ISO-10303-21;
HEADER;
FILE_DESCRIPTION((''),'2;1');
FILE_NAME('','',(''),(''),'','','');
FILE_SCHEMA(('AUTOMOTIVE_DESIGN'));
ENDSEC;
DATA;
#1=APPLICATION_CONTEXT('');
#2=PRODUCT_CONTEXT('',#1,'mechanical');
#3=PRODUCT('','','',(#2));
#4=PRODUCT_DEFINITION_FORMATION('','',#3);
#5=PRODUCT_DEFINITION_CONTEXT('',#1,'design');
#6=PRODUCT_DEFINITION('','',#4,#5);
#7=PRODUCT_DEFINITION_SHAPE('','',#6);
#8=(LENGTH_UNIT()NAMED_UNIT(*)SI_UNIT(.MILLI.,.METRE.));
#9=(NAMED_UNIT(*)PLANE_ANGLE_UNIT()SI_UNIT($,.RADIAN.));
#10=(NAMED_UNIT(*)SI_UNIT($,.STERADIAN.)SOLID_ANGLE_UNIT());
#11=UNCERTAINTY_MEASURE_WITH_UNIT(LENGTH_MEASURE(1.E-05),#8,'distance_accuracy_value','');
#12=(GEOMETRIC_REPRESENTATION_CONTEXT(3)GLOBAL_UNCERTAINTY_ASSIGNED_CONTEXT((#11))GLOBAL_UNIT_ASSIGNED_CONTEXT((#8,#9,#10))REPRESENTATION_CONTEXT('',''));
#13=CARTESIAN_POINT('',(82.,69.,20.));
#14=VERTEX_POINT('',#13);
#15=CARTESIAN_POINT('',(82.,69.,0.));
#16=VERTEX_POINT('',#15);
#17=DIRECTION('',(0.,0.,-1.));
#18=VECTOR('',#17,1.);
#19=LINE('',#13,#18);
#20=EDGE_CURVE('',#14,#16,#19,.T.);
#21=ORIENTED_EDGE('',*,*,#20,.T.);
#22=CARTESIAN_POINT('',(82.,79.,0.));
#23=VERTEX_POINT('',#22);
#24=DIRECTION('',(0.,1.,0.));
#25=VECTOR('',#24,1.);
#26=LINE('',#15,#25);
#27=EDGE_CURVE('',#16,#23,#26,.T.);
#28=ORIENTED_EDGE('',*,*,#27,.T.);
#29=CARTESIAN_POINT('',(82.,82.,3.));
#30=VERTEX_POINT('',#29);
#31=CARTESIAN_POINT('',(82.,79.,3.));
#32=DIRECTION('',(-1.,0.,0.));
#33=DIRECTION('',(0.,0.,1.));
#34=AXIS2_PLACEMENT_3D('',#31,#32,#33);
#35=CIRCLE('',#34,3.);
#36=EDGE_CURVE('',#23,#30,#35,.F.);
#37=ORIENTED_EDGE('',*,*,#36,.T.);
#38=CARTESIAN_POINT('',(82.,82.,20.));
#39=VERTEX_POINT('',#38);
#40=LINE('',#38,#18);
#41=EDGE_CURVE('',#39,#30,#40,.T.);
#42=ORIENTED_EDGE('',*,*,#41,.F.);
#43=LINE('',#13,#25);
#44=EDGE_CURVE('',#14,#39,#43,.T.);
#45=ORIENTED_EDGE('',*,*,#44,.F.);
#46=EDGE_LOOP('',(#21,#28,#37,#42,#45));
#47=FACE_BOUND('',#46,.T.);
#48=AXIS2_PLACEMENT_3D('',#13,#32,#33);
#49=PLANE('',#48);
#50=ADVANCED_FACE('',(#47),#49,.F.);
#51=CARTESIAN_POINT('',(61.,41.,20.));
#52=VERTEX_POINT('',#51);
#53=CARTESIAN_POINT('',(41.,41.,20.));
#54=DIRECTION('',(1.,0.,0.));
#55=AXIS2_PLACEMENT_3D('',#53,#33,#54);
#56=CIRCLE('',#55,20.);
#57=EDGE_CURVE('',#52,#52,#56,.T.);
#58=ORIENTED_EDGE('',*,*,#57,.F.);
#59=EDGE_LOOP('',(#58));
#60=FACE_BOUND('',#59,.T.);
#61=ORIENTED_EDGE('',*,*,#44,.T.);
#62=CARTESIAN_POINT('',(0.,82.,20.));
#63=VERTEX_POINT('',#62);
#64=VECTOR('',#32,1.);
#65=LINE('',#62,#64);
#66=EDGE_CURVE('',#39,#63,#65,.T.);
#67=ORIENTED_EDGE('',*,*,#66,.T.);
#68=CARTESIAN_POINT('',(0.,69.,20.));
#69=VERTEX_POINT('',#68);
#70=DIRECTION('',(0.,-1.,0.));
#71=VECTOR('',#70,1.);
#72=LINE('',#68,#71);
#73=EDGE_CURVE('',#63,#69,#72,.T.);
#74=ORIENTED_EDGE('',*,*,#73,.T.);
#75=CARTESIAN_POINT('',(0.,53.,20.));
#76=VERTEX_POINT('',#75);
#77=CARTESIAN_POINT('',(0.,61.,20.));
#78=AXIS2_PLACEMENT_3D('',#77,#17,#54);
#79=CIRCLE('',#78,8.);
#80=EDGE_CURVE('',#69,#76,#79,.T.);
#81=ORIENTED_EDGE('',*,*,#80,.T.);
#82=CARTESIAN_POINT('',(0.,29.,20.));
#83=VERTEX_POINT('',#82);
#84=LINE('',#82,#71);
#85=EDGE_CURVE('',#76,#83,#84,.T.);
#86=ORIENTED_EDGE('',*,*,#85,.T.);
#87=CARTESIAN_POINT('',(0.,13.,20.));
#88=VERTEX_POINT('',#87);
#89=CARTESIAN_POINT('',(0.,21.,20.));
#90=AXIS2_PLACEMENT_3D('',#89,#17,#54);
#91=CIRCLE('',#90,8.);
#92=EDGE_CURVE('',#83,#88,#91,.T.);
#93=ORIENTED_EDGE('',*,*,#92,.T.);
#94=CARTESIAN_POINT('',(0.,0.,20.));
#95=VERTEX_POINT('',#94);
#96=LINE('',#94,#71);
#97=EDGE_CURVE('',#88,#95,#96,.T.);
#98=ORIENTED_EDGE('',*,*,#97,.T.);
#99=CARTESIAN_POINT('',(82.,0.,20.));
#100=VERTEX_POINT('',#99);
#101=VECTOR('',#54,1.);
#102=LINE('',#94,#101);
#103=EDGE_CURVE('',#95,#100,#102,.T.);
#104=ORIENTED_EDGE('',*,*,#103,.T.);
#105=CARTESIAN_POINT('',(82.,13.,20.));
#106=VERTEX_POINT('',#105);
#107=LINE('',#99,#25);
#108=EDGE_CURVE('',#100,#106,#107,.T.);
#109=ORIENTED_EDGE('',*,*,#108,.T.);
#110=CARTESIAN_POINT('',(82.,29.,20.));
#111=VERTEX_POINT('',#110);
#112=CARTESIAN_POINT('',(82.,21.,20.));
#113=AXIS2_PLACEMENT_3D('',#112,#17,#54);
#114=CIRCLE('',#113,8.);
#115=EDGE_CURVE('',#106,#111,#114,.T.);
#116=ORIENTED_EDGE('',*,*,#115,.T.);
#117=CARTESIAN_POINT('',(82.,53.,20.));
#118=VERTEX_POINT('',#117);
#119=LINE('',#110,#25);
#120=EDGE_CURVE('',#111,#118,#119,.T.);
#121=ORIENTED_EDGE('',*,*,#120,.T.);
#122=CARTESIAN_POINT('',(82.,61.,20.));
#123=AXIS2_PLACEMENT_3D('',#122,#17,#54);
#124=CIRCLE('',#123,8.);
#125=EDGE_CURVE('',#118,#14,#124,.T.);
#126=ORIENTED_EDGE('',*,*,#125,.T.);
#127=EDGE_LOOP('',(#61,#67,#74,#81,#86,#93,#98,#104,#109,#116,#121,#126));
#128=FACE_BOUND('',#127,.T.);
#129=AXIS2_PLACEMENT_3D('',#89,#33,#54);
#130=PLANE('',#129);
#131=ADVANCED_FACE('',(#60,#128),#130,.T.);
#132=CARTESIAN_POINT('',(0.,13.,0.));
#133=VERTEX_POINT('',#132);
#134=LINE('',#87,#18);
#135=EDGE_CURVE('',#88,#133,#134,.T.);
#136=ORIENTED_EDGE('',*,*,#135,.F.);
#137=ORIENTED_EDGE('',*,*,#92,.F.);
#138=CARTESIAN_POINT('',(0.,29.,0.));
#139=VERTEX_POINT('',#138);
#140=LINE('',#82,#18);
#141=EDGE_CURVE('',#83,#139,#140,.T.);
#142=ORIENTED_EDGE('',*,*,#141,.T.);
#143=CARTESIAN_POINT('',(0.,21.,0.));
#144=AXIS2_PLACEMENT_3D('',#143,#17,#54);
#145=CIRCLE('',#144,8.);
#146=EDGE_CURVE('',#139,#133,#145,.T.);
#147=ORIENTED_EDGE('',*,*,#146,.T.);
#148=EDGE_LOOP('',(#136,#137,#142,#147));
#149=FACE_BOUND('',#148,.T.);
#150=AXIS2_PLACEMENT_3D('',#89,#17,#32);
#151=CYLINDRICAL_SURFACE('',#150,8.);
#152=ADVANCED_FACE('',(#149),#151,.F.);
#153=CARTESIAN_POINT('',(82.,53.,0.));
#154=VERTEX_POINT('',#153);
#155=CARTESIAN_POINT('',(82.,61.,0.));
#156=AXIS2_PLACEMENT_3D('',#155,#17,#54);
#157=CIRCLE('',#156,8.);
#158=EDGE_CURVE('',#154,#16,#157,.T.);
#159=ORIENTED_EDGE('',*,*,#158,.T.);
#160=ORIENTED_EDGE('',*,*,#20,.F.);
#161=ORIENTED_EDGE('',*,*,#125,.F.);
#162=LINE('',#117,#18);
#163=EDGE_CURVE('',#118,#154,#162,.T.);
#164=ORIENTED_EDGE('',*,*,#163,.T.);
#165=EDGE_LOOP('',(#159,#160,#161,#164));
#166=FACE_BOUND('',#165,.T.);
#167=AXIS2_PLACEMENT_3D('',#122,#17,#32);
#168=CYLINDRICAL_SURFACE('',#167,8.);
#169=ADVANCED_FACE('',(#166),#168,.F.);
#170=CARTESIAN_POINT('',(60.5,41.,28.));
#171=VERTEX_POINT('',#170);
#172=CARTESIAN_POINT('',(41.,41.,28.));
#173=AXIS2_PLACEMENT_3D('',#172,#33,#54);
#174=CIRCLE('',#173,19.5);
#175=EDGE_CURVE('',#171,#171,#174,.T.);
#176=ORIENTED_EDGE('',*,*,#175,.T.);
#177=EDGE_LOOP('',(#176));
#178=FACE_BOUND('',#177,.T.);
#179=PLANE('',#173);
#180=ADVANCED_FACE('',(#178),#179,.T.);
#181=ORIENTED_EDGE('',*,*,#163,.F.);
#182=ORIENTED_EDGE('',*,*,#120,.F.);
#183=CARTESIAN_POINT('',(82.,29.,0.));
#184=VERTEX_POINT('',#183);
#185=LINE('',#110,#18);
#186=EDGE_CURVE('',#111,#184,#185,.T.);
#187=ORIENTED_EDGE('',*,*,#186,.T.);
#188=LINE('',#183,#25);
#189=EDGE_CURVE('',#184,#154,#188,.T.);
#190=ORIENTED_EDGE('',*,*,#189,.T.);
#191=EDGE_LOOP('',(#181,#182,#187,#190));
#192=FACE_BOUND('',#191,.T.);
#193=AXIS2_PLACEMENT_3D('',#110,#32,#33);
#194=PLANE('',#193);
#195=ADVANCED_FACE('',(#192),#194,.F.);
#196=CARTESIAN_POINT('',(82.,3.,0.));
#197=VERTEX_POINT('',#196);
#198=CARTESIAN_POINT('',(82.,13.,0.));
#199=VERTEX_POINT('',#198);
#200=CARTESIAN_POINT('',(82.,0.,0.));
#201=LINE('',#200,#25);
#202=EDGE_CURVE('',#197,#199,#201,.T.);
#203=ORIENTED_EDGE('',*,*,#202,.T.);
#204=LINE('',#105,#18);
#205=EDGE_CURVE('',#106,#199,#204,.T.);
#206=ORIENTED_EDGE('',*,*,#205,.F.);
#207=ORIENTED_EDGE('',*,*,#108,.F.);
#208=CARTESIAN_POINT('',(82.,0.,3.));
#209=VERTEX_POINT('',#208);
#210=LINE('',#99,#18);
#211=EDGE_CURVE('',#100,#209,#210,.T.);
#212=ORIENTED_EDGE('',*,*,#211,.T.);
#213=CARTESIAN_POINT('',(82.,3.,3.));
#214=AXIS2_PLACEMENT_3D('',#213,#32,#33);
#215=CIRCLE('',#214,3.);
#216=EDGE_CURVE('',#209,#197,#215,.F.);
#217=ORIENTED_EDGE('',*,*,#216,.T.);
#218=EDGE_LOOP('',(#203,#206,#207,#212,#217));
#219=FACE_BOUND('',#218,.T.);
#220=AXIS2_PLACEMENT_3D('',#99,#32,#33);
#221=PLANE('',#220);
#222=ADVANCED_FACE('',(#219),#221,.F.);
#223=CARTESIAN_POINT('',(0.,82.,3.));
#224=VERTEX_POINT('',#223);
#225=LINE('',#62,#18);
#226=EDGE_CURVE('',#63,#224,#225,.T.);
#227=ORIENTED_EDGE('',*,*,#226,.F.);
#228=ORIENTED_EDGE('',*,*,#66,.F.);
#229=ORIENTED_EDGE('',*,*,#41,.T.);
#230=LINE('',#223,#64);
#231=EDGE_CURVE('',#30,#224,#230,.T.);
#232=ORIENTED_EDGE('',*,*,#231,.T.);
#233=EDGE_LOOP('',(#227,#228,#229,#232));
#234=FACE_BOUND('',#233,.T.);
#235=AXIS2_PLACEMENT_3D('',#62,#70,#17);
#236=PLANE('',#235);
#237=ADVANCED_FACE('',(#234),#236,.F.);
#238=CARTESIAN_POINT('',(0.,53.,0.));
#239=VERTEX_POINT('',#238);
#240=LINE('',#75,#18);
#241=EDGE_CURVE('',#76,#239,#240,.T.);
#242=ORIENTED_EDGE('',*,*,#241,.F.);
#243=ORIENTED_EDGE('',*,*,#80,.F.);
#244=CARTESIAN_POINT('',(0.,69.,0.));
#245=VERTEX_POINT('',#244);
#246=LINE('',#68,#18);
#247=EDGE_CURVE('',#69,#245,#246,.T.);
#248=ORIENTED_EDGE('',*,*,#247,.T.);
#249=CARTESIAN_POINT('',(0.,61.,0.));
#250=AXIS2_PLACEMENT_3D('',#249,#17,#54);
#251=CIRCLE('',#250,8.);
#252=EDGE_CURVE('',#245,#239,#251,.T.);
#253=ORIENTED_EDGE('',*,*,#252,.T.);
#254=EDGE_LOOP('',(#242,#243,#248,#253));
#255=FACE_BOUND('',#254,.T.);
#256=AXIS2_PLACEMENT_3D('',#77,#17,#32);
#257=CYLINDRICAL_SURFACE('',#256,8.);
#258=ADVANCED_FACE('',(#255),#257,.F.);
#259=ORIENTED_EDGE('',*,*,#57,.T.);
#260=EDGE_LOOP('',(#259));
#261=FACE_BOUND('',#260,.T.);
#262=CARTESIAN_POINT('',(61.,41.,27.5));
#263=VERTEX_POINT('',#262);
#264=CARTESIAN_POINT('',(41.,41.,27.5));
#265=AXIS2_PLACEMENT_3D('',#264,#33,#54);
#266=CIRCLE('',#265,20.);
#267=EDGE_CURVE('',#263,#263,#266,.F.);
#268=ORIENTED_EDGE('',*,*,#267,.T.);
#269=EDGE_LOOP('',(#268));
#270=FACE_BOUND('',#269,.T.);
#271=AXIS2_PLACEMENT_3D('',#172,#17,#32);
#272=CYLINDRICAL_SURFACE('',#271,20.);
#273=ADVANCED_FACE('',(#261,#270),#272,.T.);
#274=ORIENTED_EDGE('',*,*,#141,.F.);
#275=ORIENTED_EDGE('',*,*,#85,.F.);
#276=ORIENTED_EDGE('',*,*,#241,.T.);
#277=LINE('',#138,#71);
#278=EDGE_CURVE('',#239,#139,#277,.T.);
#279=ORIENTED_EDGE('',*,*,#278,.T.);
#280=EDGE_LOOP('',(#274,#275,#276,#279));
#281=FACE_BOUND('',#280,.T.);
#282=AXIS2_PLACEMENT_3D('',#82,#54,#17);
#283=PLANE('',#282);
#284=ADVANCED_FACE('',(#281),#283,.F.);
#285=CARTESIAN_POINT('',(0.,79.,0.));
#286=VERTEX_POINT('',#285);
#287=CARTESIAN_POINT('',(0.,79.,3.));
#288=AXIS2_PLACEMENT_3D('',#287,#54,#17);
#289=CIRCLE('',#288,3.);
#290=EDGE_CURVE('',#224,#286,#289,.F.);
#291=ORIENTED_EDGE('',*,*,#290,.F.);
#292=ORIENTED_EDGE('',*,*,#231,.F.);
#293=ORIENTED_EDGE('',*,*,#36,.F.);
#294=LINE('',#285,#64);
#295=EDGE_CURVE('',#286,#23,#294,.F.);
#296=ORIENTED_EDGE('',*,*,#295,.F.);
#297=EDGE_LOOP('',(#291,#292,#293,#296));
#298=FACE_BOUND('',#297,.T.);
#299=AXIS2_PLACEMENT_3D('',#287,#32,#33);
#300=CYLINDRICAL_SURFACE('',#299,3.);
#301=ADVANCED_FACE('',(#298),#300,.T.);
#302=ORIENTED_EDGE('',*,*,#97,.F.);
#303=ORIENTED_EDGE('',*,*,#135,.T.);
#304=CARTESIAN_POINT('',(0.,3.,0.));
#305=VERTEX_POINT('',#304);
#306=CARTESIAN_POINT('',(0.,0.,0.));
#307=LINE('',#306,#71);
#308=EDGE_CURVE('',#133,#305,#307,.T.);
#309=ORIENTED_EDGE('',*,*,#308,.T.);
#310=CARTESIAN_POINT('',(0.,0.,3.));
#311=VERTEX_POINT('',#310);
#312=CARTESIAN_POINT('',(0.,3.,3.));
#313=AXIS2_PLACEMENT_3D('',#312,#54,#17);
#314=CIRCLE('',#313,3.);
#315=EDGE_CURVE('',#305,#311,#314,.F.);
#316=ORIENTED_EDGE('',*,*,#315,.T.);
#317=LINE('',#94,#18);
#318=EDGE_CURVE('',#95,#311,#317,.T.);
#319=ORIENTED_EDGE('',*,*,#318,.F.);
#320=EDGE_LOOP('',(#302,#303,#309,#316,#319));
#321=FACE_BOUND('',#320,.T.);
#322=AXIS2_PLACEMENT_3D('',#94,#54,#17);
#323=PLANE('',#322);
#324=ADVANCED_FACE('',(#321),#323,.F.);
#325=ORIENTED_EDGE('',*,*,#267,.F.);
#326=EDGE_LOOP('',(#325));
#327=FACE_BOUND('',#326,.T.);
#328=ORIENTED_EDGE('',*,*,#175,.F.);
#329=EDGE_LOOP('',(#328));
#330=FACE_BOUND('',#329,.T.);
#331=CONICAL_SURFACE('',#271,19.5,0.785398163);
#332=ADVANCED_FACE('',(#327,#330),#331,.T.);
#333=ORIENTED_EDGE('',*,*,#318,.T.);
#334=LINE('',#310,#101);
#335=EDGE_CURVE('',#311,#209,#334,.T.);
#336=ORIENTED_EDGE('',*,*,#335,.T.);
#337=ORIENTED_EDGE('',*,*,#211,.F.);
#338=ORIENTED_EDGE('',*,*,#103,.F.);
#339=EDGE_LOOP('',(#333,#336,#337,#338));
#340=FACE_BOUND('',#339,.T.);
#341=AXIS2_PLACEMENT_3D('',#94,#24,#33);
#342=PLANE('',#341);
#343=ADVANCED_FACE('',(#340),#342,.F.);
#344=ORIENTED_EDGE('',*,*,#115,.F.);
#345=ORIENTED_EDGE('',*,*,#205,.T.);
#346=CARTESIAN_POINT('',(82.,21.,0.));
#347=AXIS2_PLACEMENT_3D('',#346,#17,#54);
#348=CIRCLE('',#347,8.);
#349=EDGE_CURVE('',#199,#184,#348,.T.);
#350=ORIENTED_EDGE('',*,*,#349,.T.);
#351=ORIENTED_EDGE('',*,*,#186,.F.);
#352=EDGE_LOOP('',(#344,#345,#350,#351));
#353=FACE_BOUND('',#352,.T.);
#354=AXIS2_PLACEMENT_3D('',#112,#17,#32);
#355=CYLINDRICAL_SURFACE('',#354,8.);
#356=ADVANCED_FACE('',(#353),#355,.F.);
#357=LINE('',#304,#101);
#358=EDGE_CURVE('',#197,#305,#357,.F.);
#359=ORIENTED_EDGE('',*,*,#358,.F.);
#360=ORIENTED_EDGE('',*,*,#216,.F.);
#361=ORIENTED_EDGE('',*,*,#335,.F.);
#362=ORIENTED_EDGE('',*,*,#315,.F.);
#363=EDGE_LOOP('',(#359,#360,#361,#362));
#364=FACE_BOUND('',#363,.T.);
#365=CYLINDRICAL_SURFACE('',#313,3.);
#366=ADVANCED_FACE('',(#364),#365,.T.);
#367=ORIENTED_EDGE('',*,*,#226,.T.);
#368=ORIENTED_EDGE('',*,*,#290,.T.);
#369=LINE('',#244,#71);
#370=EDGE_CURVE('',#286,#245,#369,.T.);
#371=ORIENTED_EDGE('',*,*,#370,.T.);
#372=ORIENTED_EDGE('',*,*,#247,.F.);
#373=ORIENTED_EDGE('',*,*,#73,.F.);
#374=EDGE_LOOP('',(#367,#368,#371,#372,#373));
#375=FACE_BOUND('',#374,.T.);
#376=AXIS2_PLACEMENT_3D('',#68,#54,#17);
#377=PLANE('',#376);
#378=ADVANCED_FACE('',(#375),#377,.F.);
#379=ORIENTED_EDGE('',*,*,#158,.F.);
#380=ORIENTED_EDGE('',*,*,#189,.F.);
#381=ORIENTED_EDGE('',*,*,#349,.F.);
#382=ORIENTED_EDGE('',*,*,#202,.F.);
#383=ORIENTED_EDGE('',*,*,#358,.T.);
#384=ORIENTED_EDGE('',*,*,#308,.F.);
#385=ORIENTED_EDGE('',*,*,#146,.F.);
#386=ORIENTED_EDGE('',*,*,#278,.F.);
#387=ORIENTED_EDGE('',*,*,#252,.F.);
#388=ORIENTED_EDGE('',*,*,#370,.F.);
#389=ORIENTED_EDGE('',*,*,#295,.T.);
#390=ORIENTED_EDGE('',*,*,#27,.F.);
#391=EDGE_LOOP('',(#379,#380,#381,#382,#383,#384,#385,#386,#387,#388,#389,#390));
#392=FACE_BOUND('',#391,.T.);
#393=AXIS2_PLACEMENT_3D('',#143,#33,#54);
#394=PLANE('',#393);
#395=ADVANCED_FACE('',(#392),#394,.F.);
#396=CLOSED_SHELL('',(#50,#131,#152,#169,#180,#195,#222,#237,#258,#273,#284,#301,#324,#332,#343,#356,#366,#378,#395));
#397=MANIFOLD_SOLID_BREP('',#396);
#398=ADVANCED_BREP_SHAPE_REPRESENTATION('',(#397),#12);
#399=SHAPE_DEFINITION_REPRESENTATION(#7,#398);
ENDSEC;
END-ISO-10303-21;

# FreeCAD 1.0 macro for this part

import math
import FreeCAD as App
import Part
import Sketcher
from FreeCAD import Vector
Q = App.Units.Quantity


def edges_at(feature, points):
    """Names of the edges that pass closest to the given points."""
    edges = feature.Shape.Edges
    near = lambda p: min(range(len(edges)), key=lambda i: edges[i].distToShape(Part.Vertex(*p))[0])
    return sorted({f"Edge{near(p) + 1}" for p in points})

doc = App.newDocument("Part")
body = doc.addObject("PartDesign::Body", "Body")

# Sketch on XY plane
sketch1 = body.newObject("Sketcher::SketchObject", "Sketch")
sketch1.AttachmentSupport = (doc.getObject("XY_Plane"), [""])
sketch1.MapMode = "FlatFace"
sketch1.addGeometry([
    Part.LineSegment(Vector(0, 82, 0), Vector(0, 69, 0)),  # 0
    Part.ArcOfCircle(Part.Circle(Vector(0, 61, 0), Vector(0, 0, 1), 8), math.radians(-90), math.radians(90)),  # 1
    Part.LineSegment(Vector(0, 53, 0), Vector(0, 29, 0)),  # 2
    Part.ArcOfCircle(Part.Circle(Vector(0, 21, 0), Vector(0, 0, 1), 8), math.radians(-90), math.radians(90)),  # 3
    Part.LineSegment(Vector(0, 13, 0), Vector(0, 0, 0)),  # 4
    Part.LineSegment(Vector(0, 0, 0), Vector(82, 0, 0)),  # 5
    Part.LineSegment(Vector(82, 0, 0), Vector(82, 13, 0)),  # 6
    Part.ArcOfCircle(Part.Circle(Vector(82, 21, 0), Vector(0, 0, 1), 8), math.radians(90), math.radians(270)),  # 7
    Part.LineSegment(Vector(82, 29, 0), Vector(82, 53, 0)),  # 8
    Part.ArcOfCircle(Part.Circle(Vector(82, 61, 0), Vector(0, 0, 1), 8), math.radians(90), math.radians(270)),  # 9
    Part.LineSegment(Vector(82, 69, 0), Vector(82, 82, 0)),  # 10
    Part.LineSegment(Vector(82, 82, 0), Vector(0, 82, 0)),  # 11
], False)
sketch1.addConstraint([
    Sketcher.Constraint("Coincident", 0, 2, 1, 2),
    Sketcher.Constraint("Coincident", 1, 1, 2, 1),
    Sketcher.Constraint("Coincident", 2, 2, 3, 2),
    Sketcher.Constraint("Coincident", 3, 1, 4, 1),
    Sketcher.Constraint("Coincident", 4, 2, 5, 1),
    Sketcher.Constraint("Coincident", 5, 2, 6, 1),
    Sketcher.Constraint("Coincident", 6, 2, 7, 2),
    Sketcher.Constraint("Coincident", 7, 1, 8, 1),
    Sketcher.Constraint("Coincident", 8, 2, 9, 2),
    Sketcher.Constraint("Coincident", 9, 1, 10, 1),
    Sketcher.Constraint("Coincident", 10, 2, 11, 1),
    Sketcher.Constraint("Coincident", 11, 2, 0, 1),
    Sketcher.Constraint("Vertical", 0),
    Sketcher.Constraint("Vertical", 2),
    Sketcher.Constraint("Vertical", 4),
    Sketcher.Constraint("Horizontal", 5),
    Sketcher.Constraint("Vertical", 6),
    Sketcher.Constraint("Vertical", 8),
    Sketcher.Constraint("Vertical", 10),
    Sketcher.Constraint("Horizontal", 11),
    Sketcher.Constraint("Coincident", 4, 2, -1, 1),
    Sketcher.Constraint("Equal", 1, 3),
    Sketcher.Constraint("Equal", 3, 7),
    Sketcher.Constraint("Equal", 7, 9),
    Sketcher.Constraint("PointOnObject", 1, 3, -2),
    Sketcher.Constraint("PointOnObject", 3, 3, -2),
    Sketcher.Constraint("PointOnObject", 0, 2, -2),
    Sketcher.Constraint("PointOnObject", 1, 1, -2),
    Sketcher.Constraint("Horizontal", 3, 3, 7, 3),
    Sketcher.Constraint("Horizontal", 1, 3, 9, 3),
    Sketcher.Constraint("Vertical", 7, 3, 9, 3),
    Sketcher.Constraint("Vertical", 9, 3, 5, 2),
    Sketcher.Constraint("Vertical", 6, 2, 7, 1),
    Sketcher.Constraint("Vertical", 8, 2, 9, 1),
    Sketcher.Constraint("Equal", 0, 4),
    Sketcher.Constraint("Radius", 1, Q("8 mm")),
    Sketcher.Constraint("DistanceX", 5, 1, 5, 2, Q("82 mm")),
    Sketcher.Constraint("DistanceY", 0, 2, 0, 1, Q("13 mm")),
    Sketcher.Constraint("DistanceY", 2, 2, 2, 1, Q("24 mm")),
])
pad1 = body.newObject("PartDesign::Pad", "Pad")
pad1.Profile = sketch1
pad1.Length = 20

# Sketch on XY plane
sketch2 = body.newObject("Sketcher::SketchObject", "Sketch001")
sketch2.AttachmentSupport = (doc.getObject("XY_Plane"), [""])
sketch2.MapMode = "FlatFace"
sketch2.AttachmentOffset = App.Placement(Vector(0, 0, 20), App.Rotation())
sketch2.addGeometry(Part.Circle(Vector(41, 41, 0), Vector(0, 0, 1), 20), False)
sketch2.addConstraint([
    Sketcher.Constraint("Diameter", 0, Q("40 mm")),
    Sketcher.Constraint("DistanceX", -1, 1, 0, 3, Q("41 mm")),
    Sketcher.Constraint("DistanceY", -1, 1, 0, 3, Q("41 mm")),
])
pad2 = body.newObject("PartDesign::Pad", "Pad001")
pad2.Profile = sketch2
pad2.Length = 8
doc.recompute()

chamfer = body.newObject("PartDesign::Chamfer", "Chamfer")
chamfer.Base = (pad2, edges_at(pad2, [(21, 41, 28)]))
chamfer.Size = 0.5
doc.recompute()

fillet = body.newObject("PartDesign::Fillet", "Fillet")
fillet.Base = (chamfer, edges_at(chamfer, [(41, 82, 0), (41, 0, 0)]))
fillet.Radius = 3

doc.recompute()
